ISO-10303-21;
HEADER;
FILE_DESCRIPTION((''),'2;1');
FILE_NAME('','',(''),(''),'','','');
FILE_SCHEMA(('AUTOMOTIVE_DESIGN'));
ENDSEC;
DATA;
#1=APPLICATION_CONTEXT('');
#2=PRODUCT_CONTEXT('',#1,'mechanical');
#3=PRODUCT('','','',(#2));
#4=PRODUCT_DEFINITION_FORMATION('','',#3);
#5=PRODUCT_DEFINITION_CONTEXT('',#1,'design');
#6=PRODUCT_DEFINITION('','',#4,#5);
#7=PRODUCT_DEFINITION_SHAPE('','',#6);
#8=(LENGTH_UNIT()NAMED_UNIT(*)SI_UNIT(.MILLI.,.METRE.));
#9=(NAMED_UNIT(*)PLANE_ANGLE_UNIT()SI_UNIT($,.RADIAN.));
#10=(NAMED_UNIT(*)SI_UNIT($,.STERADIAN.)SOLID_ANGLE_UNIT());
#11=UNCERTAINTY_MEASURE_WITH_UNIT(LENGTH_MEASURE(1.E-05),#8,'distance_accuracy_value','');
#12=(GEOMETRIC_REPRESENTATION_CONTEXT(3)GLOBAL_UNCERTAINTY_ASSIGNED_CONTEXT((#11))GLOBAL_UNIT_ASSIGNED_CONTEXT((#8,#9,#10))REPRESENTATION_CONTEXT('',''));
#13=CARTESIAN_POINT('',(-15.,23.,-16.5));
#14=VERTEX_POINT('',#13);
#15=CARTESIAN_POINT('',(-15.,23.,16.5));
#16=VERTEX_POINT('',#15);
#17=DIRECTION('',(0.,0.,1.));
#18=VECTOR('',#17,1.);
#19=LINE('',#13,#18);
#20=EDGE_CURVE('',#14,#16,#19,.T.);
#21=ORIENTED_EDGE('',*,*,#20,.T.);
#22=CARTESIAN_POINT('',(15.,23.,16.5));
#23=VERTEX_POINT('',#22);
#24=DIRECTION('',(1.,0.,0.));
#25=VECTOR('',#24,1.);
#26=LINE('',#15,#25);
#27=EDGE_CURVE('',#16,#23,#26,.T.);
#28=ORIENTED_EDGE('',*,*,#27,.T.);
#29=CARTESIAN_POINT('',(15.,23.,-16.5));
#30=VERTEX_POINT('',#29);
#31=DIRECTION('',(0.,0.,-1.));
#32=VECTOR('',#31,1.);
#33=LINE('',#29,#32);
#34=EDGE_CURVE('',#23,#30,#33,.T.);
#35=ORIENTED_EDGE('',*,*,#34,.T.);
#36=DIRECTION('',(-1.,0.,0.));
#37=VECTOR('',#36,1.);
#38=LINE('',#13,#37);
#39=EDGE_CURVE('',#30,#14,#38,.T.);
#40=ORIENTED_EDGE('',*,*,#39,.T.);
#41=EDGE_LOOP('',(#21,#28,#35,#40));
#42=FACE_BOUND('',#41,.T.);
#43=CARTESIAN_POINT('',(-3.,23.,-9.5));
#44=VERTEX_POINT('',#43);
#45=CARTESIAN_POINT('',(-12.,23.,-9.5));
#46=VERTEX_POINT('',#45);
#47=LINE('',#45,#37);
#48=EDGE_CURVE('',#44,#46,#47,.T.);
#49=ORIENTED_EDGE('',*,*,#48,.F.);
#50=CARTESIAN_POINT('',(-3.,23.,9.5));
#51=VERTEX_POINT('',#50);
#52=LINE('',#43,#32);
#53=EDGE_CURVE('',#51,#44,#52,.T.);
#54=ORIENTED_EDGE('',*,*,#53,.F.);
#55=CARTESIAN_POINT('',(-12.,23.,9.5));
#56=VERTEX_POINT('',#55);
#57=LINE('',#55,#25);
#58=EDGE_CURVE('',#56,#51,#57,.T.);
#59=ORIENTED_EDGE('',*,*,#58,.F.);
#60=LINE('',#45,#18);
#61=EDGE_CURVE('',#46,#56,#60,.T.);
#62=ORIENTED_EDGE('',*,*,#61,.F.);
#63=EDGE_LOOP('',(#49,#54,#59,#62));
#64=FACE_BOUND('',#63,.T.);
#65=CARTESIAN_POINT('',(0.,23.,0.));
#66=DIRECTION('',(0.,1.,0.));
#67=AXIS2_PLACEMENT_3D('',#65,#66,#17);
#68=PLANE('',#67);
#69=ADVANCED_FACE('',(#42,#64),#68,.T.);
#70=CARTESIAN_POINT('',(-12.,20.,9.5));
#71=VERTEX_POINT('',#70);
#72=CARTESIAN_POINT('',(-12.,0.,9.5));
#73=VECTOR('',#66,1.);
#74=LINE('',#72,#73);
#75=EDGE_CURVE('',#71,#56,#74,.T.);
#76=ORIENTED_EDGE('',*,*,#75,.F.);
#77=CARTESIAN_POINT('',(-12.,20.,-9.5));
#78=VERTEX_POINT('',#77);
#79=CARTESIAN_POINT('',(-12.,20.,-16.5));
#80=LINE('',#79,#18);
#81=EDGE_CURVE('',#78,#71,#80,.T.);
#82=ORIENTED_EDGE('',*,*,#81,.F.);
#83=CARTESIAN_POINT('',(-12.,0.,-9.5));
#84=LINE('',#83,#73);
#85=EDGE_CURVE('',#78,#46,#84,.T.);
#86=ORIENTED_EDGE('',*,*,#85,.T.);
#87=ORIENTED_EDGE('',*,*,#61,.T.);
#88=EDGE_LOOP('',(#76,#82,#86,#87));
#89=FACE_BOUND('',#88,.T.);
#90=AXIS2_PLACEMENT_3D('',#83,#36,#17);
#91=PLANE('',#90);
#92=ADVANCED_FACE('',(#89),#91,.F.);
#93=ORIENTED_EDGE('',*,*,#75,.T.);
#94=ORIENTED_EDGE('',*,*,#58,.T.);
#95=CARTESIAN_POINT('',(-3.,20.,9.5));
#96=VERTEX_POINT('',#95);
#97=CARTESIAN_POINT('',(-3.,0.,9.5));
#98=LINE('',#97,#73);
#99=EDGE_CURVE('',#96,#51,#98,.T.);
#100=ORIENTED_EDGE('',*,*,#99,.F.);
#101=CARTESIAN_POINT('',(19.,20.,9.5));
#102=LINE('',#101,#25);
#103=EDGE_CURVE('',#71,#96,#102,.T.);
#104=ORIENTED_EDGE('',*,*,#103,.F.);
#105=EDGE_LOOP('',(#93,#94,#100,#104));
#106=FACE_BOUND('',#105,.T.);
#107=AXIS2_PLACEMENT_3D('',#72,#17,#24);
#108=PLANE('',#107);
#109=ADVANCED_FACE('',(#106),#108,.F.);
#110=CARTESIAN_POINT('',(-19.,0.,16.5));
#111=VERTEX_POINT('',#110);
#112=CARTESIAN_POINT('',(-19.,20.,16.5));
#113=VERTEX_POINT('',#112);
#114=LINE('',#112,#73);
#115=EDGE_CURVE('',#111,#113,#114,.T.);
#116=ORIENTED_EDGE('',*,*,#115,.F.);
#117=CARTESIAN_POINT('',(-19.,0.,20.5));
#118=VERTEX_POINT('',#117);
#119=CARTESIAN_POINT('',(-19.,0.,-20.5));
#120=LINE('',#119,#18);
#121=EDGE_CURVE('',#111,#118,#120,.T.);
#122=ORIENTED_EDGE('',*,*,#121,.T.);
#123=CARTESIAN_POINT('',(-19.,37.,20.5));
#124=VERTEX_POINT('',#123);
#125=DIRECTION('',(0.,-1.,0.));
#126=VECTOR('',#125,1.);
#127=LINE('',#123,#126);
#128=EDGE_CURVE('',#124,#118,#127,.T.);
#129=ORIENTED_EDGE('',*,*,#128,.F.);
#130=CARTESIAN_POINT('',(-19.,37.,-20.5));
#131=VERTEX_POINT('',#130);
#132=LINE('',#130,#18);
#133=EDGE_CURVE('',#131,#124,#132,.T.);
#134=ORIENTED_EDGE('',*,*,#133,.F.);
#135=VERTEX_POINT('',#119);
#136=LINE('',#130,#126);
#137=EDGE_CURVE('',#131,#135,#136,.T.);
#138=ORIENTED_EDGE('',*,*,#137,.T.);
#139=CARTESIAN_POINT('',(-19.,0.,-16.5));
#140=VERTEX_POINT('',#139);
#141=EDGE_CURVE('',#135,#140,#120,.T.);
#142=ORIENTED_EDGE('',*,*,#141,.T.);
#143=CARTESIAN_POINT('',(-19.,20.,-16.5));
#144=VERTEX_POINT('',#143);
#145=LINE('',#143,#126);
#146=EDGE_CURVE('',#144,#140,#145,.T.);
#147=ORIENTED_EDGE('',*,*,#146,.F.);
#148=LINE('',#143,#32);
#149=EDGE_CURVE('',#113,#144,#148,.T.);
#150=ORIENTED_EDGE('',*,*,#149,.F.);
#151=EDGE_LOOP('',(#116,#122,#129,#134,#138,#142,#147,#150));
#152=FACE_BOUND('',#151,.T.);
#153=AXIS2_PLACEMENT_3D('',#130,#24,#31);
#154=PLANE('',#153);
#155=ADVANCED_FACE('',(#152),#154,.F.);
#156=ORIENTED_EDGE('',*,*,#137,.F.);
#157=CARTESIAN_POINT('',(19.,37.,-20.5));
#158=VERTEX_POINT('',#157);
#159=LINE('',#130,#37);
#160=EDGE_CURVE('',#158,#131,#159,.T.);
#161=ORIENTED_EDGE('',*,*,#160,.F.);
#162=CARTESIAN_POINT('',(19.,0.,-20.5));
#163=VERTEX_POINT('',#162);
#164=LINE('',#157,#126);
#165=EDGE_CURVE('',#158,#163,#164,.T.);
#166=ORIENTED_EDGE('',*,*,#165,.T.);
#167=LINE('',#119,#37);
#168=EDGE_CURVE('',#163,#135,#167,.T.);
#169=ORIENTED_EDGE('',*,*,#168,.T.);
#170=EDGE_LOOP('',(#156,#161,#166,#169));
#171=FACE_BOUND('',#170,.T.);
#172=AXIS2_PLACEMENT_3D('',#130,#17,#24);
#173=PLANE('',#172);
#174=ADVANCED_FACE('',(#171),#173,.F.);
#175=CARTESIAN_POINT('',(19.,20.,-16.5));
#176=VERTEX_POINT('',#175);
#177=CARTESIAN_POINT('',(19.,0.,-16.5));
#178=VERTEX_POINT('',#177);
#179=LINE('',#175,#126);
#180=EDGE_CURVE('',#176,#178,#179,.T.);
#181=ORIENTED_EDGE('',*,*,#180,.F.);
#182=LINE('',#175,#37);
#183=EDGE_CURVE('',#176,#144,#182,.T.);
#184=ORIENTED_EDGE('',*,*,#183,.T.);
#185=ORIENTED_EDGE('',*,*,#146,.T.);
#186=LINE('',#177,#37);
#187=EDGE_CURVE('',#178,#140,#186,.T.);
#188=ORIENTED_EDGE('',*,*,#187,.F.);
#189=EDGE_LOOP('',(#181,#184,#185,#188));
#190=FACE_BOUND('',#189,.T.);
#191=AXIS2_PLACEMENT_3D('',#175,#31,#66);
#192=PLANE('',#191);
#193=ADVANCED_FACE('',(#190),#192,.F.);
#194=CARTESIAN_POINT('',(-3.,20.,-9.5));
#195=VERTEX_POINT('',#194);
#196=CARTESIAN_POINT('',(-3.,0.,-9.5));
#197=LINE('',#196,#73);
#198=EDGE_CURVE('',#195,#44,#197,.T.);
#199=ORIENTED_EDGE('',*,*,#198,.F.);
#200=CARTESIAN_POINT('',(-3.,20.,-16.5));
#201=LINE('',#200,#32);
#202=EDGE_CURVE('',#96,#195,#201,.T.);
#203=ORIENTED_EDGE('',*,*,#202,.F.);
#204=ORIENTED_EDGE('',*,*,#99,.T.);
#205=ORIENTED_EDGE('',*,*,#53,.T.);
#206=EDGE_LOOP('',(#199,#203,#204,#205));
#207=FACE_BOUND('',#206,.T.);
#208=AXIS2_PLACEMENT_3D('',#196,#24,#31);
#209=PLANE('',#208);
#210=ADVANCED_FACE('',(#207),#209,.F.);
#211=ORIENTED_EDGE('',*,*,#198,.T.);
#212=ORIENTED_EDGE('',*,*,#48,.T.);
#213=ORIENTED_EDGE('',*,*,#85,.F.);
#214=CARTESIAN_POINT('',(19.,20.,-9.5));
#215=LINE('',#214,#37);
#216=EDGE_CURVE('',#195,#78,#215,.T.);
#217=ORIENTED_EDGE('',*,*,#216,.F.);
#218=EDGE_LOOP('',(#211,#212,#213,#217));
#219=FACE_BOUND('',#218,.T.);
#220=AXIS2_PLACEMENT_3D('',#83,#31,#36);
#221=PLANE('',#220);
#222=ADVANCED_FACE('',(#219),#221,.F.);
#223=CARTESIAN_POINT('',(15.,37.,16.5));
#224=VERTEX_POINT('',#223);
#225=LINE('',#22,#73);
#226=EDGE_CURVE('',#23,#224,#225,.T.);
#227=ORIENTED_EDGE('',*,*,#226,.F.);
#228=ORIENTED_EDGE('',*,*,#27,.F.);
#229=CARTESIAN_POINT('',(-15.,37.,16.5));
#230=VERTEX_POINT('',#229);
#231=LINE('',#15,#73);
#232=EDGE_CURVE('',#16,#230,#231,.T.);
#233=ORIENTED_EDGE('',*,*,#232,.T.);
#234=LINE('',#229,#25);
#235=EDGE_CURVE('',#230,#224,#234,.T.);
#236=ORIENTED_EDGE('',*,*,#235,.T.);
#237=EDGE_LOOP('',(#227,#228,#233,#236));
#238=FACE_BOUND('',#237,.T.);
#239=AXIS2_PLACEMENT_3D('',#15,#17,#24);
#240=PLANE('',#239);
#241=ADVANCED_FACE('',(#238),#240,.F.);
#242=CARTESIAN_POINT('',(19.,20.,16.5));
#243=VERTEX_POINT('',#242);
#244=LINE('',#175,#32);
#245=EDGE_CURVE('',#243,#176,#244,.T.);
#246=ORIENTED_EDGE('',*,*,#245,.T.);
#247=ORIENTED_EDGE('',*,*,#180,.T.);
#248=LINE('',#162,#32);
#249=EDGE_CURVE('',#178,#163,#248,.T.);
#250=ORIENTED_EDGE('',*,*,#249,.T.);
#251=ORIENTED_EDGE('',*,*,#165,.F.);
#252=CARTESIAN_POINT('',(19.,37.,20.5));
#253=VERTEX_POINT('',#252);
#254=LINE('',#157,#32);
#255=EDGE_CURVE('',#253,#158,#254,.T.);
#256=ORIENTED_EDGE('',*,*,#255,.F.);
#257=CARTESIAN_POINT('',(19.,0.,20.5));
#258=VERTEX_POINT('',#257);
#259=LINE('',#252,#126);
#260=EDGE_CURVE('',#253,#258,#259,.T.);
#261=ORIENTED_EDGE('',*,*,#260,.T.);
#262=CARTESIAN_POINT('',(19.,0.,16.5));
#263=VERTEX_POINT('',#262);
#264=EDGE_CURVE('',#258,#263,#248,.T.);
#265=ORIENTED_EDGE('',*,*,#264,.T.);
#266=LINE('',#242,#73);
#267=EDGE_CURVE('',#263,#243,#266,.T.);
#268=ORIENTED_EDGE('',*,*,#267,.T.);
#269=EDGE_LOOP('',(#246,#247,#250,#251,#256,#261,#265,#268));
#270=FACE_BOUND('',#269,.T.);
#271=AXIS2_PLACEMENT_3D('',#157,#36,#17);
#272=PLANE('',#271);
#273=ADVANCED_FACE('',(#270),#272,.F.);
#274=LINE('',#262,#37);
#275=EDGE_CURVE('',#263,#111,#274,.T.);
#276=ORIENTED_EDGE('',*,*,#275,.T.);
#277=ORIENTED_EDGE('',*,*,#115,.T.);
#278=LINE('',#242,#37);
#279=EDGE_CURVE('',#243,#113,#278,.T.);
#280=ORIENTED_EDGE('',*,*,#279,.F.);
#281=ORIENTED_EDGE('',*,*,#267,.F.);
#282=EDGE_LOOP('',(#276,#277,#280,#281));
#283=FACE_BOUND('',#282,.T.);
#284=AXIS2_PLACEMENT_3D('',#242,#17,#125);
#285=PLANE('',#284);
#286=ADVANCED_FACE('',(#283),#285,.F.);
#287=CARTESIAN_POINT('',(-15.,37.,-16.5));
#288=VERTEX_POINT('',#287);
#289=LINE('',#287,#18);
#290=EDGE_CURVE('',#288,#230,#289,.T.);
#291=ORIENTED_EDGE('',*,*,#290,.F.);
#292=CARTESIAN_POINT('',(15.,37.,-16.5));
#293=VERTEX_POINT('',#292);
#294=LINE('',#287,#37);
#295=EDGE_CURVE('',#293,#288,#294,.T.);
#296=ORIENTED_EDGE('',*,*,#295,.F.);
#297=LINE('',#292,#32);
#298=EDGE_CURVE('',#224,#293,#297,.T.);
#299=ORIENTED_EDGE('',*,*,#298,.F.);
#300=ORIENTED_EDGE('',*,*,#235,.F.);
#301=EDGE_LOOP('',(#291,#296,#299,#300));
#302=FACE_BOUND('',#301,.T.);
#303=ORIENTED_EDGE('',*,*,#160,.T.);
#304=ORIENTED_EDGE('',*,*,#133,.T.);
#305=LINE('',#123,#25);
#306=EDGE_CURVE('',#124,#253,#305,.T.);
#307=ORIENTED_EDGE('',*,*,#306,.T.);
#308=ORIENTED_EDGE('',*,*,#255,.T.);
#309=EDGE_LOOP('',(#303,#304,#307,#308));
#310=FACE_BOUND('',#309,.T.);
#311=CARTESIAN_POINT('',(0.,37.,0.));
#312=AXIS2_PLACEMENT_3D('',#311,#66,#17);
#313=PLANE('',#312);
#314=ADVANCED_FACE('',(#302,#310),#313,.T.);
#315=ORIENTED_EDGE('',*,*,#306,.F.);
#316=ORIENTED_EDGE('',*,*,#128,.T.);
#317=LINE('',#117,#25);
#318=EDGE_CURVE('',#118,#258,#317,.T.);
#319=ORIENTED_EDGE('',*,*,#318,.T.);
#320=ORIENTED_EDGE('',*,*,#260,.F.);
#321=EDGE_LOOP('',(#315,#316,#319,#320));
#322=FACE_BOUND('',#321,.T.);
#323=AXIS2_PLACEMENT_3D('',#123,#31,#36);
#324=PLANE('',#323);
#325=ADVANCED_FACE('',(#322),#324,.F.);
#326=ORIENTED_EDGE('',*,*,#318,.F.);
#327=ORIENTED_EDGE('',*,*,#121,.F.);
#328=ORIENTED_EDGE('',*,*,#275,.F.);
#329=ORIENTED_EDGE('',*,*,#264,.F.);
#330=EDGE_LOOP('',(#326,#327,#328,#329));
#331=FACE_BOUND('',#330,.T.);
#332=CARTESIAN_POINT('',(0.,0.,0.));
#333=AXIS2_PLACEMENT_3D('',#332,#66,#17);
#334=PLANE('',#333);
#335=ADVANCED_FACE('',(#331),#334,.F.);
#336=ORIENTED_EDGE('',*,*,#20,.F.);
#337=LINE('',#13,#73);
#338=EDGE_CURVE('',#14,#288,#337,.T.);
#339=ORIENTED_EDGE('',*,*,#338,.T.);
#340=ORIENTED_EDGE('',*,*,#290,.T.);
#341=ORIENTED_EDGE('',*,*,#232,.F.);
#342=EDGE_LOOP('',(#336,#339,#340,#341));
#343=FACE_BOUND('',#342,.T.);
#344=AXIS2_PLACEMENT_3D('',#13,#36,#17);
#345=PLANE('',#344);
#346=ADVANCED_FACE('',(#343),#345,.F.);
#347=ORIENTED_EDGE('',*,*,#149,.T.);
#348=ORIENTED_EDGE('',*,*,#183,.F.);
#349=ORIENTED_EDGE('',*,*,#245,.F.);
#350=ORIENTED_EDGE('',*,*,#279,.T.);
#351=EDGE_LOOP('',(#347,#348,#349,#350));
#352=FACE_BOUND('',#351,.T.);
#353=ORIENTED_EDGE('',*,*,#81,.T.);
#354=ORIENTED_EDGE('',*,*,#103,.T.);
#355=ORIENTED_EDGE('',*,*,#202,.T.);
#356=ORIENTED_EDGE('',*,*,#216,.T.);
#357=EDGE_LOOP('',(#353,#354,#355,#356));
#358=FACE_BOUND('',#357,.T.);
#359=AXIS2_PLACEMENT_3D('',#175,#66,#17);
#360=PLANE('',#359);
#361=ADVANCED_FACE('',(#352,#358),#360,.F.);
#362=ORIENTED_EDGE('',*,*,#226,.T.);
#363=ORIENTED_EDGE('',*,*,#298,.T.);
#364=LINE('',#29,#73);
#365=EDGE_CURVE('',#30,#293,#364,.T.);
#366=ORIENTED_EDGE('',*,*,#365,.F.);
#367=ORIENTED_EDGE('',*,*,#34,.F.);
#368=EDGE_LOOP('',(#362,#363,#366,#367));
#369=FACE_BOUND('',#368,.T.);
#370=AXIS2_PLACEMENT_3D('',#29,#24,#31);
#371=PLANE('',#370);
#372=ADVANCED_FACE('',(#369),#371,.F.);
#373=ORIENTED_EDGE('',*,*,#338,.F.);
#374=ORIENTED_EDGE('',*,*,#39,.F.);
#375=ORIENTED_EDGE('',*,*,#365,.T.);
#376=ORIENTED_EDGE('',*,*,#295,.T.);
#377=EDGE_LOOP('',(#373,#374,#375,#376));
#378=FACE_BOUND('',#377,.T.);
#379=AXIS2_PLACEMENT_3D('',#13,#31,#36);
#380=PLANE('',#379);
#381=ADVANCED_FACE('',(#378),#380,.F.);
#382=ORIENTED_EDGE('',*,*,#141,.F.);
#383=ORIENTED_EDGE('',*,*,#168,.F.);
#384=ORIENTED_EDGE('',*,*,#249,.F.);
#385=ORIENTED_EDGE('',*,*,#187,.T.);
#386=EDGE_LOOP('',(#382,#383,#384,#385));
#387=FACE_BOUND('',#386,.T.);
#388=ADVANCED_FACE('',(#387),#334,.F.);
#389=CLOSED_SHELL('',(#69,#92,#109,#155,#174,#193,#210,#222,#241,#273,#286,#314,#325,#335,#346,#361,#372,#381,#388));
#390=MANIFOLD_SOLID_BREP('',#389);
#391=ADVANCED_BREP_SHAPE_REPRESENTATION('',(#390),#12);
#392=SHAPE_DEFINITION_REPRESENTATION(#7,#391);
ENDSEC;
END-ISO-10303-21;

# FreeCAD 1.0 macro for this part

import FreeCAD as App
import Part
import Sketcher
from FreeCAD import Vector


def add_polygon(sketch, points):
    """Adds a closed chain of lines whose ends are joined by coincident constraints."""
    first, n = sketch.GeometryCount, len(points)
    for a, b in zip(points, points[1:] + points[:1]):
        sketch.addGeometry(Part.LineSegment(App.Vector(*a, 0), App.Vector(*b, 0)), False)
    for i in range(n):
        sketch.addConstraint(Sketcher.Constraint("Coincident", first + i, 2, first + (i + 1) % n, 1))

doc = App.newDocument("Part")
body = doc.addObject("PartDesign::Body", "Body")

# Sketch on XZ plane
sketch1 = body.newObject("Sketcher::SketchObject", "Sketch")
sketch1.AttachmentSupport = (doc.getObject("XZ_Plane"), [""])
sketch1.MapMode = "FlatFace"
add_polygon(sketch1, [(-19, -20), (-19, 20), (19, 20), (19, -20)])  # lines 0-3
sketch1.addConstraint(Sketcher.Constraint("Vertical", 0))
sketch1.addConstraint(Sketcher.Constraint("Horizontal", 1))
sketch1.addConstraint(Sketcher.Constraint("Vertical", 2))
sketch1.addConstraint(Sketcher.Constraint("Horizontal", 3))
sketch1.addConstraint(Sketcher.Constraint("Symmetric", 0, 2, 2, 2, -1, 1))
sketch1.addConstraint(Sketcher.Constraint("DistanceX", 1, 1, 1, 2, 38.0))
sketch1.addConstraint(Sketcher.Constraint("DistanceY", 0, 1, 0, 2, 41.0))
pad1 = body.newObject("PartDesign::Pad", "Pad")
pad1.Profile = sketch1
pad1.Length = 37
pad1.Reversed = True

# Sketch on XZ plane
sketch2 = body.newObject("Sketcher::SketchObject", "Sketch001")
sketch2.AttachmentSupport = (doc.getObject("XZ_Plane"), [""])
sketch2.MapMode = "FlatFace"
sketch2.AttachmentOffset = App.Placement(Vector(0, 0, -37), App.Rotation())
add_polygon(sketch2, [(-15, -16), (-15, 16), (15, 16), (15, -16)])  # lines 0-3
sketch2.addConstraint(Sketcher.Constraint("Vertical", 0))
sketch2.addConstraint(Sketcher.Constraint("Horizontal", 1))
sketch2.addConstraint(Sketcher.Constraint("Vertical", 2))
sketch2.addConstraint(Sketcher.Constraint("Horizontal", 3))
sketch2.addConstraint(Sketcher.Constraint("Symmetric", 0, 2, 2, 2, -1, 1))
sketch2.addConstraint(Sketcher.Constraint("DistanceX", 1, 1, 1, 2, 30.0))
sketch2.addConstraint(Sketcher.Constraint("DistanceY", 0, 1, 0, 2, 33.0))
pocket1 = body.newObject("PartDesign::Pocket", "Pocket")
pocket1.Profile = sketch2
pocket1.Length = 14
pocket1.Reversed = True

# Sketch on YZ plane
sketch3 = body.newObject("Sketcher::SketchObject", "Sketch002")
sketch3.AttachmentSupport = (doc.getObject("YZ_Plane"), [""])
sketch3.MapMode = "FlatFace"
sketch3.AttachmentOffset = App.Placement(Vector(0, 0, -19), App.Rotation())
add_polygon(sketch3, [(20, -16), (0, -16), (0, 16), (20, 16)])  # lines 0-3
sketch3.addConstraint(Sketcher.Constraint("Horizontal", 0))
sketch3.addConstraint(Sketcher.Constraint("Vertical", 1))
sketch3.addConstraint(Sketcher.Constraint("Horizontal", 2))
sketch3.addConstraint(Sketcher.Constraint("Vertical", 3))
sketch3.addConstraint(Sketcher.Constraint("Symmetric", 0, 2, 1, 2, -1, 1))
sketch3.addConstraint(Sketcher.Constraint("DistanceX", 0, 2, 0, 1, 20.0))
sketch3.addConstraint(Sketcher.Constraint("DistanceY", 1, 1, 1, 2, 33.0))
pocket2 = body.newObject("PartDesign::Pocket", "Pocket001")
pocket2.Profile = sketch3
pocket2.Type = "ThroughAll"
pocket2.Reversed = True

# Sketch on XZ plane
sketch4 = body.newObject("Sketcher::SketchObject", "Sketch003")
sketch4.AttachmentSupport = (doc.getObject("XZ_Plane"), [""])
sketch4.MapMode = "FlatFace"
sketch4.AttachmentOffset = App.Placement(Vector(0, 0, -23), App.Rotation())
add_polygon(sketch4, [(-12, -10), (-12, 10), (-3, 10), (-3, -10)])  # lines 0-3
sketch4.addConstraint(Sketcher.Constraint("Vertical", 0))
sketch4.addConstraint(Sketcher.Constraint("Horizontal", 1))
sketch4.addConstraint(Sketcher.Constraint("Vertical", 2))
sketch4.addConstraint(Sketcher.Constraint("Horizontal", 3))
sketch4.addConstraint(Sketcher.Constraint("DistanceX", 1, 1, 1, 2, 9.0))
sketch4.addConstraint(Sketcher.Constraint("DistanceY", 0, 1, 0, 2, 19.0))
sketch4.addConstraint(Sketcher.Constraint("DistanceX", 0, 2, -1, 1, 12.0))
sketch4.addConstraint(Sketcher.Constraint("DistanceY", -1, 1, 0, 2, 9.5))
pocket3 = body.newObject("PartDesign::Pocket", "Pocket002")
pocket3.Profile = sketch4
pocket3.Type = "ThroughAll"
pocket3.Reversed = True

doc.recompute()
